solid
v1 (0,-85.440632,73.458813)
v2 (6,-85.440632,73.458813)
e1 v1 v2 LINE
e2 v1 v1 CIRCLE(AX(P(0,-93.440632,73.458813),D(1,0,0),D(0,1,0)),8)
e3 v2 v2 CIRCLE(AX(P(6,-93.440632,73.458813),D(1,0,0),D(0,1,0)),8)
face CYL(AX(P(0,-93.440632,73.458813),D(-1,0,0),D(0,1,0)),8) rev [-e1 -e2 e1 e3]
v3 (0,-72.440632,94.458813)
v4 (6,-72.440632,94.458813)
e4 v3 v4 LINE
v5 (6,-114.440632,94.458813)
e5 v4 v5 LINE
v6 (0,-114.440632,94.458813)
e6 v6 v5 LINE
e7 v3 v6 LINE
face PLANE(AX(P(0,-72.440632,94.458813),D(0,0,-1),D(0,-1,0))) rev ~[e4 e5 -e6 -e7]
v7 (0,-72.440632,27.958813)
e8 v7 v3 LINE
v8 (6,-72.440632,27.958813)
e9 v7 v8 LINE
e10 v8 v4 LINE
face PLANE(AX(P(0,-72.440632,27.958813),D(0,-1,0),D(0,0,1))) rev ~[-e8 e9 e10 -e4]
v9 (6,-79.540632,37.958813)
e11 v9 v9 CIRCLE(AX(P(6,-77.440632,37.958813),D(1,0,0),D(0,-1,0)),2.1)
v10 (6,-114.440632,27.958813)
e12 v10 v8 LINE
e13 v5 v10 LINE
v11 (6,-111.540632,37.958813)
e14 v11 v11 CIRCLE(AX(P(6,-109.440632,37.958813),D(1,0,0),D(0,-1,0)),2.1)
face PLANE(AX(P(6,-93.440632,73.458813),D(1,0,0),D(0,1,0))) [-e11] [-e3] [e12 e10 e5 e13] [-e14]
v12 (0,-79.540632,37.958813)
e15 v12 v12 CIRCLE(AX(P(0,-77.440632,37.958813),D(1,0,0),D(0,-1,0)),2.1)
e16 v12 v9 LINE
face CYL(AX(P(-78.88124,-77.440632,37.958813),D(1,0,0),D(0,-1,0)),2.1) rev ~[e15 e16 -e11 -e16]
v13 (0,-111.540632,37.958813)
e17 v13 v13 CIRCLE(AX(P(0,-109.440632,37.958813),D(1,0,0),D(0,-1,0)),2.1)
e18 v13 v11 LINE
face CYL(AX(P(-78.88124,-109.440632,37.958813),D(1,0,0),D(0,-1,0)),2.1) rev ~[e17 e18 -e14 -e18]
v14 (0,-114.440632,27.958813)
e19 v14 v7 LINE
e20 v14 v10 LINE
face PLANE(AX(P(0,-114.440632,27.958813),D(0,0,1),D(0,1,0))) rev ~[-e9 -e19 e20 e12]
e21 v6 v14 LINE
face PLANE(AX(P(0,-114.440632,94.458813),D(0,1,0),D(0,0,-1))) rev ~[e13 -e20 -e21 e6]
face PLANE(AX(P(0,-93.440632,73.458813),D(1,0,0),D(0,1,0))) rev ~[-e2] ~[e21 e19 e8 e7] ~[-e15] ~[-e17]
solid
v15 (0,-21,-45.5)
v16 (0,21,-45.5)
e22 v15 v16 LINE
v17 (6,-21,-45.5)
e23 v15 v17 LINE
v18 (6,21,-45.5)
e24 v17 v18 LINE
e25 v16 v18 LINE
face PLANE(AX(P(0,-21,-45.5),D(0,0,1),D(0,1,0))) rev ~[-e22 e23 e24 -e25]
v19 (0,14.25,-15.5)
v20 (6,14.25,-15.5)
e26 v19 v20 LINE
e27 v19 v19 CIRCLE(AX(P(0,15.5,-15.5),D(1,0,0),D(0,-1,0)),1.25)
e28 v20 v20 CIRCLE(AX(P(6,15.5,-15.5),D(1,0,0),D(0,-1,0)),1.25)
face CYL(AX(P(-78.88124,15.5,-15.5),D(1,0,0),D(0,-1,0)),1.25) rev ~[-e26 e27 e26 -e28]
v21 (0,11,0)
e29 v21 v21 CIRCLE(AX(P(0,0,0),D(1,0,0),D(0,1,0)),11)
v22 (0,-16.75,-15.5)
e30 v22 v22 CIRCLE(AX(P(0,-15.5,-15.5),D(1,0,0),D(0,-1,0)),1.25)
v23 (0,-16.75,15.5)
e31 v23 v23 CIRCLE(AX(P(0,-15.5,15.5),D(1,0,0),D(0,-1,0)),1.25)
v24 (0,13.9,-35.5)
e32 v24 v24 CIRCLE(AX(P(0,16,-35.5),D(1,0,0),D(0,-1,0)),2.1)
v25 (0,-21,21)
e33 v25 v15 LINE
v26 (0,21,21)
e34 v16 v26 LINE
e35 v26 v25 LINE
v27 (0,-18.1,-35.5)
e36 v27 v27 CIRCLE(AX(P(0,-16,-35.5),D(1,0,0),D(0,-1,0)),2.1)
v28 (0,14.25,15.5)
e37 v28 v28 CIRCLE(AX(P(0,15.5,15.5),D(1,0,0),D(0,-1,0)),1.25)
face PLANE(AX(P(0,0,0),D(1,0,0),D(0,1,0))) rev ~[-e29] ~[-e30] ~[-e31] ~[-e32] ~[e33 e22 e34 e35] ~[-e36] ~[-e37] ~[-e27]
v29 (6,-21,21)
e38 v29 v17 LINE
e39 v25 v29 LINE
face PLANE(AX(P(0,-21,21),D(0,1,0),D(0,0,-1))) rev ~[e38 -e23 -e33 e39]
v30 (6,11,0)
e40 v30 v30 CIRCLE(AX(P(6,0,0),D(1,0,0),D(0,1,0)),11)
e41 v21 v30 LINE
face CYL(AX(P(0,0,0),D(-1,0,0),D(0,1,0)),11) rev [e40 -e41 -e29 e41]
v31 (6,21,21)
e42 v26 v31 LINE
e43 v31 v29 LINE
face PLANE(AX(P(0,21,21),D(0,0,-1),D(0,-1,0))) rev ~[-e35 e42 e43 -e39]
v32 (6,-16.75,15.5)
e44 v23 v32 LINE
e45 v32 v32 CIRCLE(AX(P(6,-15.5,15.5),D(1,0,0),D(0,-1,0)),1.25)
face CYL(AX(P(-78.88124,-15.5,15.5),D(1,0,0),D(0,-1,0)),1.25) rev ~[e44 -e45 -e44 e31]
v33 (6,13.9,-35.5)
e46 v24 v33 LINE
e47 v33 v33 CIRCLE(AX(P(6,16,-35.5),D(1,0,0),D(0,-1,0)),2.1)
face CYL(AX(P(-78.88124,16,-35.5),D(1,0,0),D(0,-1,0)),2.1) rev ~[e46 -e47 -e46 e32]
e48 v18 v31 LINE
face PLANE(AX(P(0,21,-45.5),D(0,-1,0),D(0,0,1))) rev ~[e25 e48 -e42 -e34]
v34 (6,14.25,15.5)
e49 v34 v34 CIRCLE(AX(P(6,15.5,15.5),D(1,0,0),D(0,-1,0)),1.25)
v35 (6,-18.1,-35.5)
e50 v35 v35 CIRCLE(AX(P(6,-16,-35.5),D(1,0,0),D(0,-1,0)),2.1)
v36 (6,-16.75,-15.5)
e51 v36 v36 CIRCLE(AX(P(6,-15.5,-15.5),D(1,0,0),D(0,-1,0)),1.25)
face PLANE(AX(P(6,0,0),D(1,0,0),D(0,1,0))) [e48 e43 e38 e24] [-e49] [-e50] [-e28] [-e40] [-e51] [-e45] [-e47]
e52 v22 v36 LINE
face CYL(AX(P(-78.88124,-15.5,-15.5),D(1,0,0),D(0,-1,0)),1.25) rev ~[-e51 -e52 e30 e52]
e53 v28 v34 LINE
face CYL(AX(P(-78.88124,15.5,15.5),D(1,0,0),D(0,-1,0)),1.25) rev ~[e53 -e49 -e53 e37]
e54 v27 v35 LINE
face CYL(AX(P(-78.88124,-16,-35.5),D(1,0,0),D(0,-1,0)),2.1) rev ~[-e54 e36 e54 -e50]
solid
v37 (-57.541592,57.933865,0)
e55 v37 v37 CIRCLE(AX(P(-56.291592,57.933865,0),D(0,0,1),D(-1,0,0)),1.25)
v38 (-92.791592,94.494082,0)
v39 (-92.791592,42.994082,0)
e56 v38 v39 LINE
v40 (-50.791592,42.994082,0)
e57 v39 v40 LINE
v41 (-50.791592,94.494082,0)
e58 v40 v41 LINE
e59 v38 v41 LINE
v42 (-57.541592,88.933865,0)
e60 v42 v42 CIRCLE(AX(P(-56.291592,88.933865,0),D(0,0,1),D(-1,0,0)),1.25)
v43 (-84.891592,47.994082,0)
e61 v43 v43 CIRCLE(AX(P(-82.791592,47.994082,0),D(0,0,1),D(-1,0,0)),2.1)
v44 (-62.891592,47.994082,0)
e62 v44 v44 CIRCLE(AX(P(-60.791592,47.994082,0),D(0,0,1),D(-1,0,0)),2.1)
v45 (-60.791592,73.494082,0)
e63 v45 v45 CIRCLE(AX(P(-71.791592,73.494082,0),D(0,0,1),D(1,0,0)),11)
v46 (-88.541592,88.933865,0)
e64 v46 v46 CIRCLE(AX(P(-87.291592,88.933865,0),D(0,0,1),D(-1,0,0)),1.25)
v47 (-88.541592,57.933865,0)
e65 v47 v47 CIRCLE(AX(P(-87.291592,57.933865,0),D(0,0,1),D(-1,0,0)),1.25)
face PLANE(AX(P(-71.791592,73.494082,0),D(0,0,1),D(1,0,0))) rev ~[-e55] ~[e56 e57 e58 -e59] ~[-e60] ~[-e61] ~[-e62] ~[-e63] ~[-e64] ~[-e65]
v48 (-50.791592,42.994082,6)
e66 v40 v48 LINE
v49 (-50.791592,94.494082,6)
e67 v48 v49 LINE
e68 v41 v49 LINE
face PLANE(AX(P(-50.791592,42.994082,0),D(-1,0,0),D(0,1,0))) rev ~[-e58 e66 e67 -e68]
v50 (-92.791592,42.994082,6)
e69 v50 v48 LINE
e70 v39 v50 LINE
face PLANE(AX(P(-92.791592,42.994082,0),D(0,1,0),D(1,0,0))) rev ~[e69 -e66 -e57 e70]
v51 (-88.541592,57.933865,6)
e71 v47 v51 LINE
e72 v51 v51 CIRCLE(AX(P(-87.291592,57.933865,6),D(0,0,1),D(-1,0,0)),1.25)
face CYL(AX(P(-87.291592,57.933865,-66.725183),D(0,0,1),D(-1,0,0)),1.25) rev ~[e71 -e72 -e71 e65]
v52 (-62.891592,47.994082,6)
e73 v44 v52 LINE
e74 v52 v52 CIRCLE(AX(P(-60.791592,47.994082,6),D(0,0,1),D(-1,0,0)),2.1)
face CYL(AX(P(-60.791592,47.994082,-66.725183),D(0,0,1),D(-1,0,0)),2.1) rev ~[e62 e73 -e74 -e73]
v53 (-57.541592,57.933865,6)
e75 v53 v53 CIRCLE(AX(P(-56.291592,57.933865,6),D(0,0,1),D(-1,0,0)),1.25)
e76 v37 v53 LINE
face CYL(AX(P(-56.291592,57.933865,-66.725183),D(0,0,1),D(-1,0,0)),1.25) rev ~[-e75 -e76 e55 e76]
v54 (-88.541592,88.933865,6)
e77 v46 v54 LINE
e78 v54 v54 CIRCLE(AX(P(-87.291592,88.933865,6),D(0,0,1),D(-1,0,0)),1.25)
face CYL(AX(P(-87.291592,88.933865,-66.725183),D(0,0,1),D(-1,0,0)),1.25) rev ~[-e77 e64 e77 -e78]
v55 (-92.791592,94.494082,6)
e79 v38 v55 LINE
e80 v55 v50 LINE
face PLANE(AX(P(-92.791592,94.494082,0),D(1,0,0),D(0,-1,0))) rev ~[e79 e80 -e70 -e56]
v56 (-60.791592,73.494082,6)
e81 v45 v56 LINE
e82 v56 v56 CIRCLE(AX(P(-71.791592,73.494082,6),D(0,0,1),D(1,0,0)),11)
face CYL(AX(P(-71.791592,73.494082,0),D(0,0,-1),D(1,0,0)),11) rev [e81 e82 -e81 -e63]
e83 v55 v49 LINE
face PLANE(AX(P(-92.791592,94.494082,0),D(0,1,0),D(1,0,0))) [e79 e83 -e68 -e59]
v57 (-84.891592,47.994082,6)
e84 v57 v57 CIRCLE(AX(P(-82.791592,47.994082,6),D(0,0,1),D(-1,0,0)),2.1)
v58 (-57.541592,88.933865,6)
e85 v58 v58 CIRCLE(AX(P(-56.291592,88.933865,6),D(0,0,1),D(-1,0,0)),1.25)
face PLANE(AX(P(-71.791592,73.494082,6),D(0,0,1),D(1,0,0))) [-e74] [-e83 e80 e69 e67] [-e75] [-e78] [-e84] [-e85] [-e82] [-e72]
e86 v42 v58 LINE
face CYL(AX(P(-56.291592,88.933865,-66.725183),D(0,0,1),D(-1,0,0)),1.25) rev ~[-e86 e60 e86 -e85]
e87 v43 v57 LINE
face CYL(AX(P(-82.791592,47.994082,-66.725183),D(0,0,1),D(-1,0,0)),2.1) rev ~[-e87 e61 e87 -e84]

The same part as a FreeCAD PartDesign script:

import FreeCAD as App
import Part
import Sketcher
Q = App.Units.Quantity

doc = App.newDocument("Part")
body = doc.addObject("PartDesign::Body", "Body")

# Sketch on YZ plane
sketch1 = body.newObject("Sketcher::SketchObject", "Sketch")
sketch1.AttachmentSupport = (doc.getObject("YZ_Plane"), [""])
sketch1.MapMode = "FlatFace"
sketch1.addGeometry([
    Part.LineSegment(App.Vector(21, 21, 0), App.Vector(-21, 21, 0)),  # 0
    Part.LineSegment(App.Vector(-21, 21, 0), App.Vector(-21, -46, 0)),  # 1
    Part.LineSegment(App.Vector(-21, -46, 0), App.Vector(21, -46, 0)),  # 2
    Part.LineSegment(App.Vector(21, -46, 0), App.Vector(21, 21, 0)),  # 3
    Part.Circle(App.Vector(0, 0, 0), App.Vector(0, 0, 1), 11),  # 4
], False)
sketch1.addConstraint([
    Sketcher.Constraint("Coincident", 0, 2, 1, 1),
    Sketcher.Constraint("Coincident", 1, 2, 2, 1),
    Sketcher.Constraint("Coincident", 2, 2, 3, 1),
    Sketcher.Constraint("Coincident", 3, 2, 0, 1),
    Sketcher.Constraint("Horizontal", 0),
    Sketcher.Constraint("Vertical", 1),
    Sketcher.Constraint("Horizontal", 2),
    Sketcher.Constraint("Vertical", 3),
    Sketcher.Constraint("Coincident", 4, 3, -1, 1),
    Sketcher.Constraint("Diameter", 4, Q("22 mm")),
    Sketcher.Constraint("DistanceX", 0, 2, 0, 1, Q("42 mm")),
    Sketcher.Constraint("DistanceY", 1, 2, 1, 1, Q("66.5 mm")),
    Sketcher.Constraint("DistanceX", 0, 2, -1, 1, Q("21 mm")),
    Sketcher.Constraint("DistanceY", -1, 1, 0, 2, Q("21 mm")),
])
pad1 = body.newObject("PartDesign::Pad", "Pad")
pad1.Profile = sketch1
pad1.Length = 6

# Sketch on YZ plane
sketch2 = body.newObject("Sketcher::SketchObject", "Sketch001")
sketch2.AttachmentSupport = (doc.getObject("YZ_Plane"), [""])
sketch2.MapMode = "FlatFace"
sketch2.addGeometry([
    Part.Circle(App.Vector(-15.5, 15.5, 0), App.Vector(0, 0, 1), 1.2),
    Part.Circle(App.Vector(15.5, 15.5, 0), App.Vector(0, 0, 1), 1.2),
    Part.Circle(App.Vector(-15.5, -15.5, 0), App.Vector(0, 0, 1), 1.2),
    Part.Circle(App.Vector(15.5, -15.5, 0), App.Vector(0, 0, 1), 1.2),
], False)
sketch2.addConstraint([
    Sketcher.Constraint("Equal", 0, 1),
    Sketcher.Constraint("Equal", 1, 2),
    Sketcher.Constraint("Equal", 2, 3),
    Sketcher.Constraint("Symmetric", 1, 3, 2, 3, -1, 1),
    Sketcher.Constraint("Symmetric", 0, 3, 3, 3, -1, 1),
    Sketcher.Constraint("Symmetric", 0, 3, 1, 3, -2),
    Sketcher.Constraint("Diameter", 0, Q("2.5 mm")),
    Sketcher.Constraint("DistanceX", 0, 3, 1, 3, Q("31 mm")),
    Sketcher.Constraint("DistanceY", 2, 3, 0, 3, Q("31 mm")),
])
doc.recompute()
hole = body.newObject("PartDesign::Hole", "Hole")
hole.Profile = sketch2
hole.ThreadType = "None"
hole.Diameter = 2.5
hole.DepthType = "ThroughAll"
hole.Reversed = True

# Sketch on YZ plane
sketch3 = body.newObject("Sketcher::SketchObject", "Sketch002")
sketch3.AttachmentSupport = (doc.getObject("YZ_Plane"), [""])
sketch3.MapMode = "FlatFace"
sketch3.addGeometry([
    Part.Circle(App.Vector(-16, -35.5, 0), App.Vector(0, 0, 1), 2.1),
    Part.Circle(App.Vector(16, -35.5, 0), App.Vector(0, 0, 1), 2.1),
], False)
sketch3.addConstraint([
    Sketcher.Constraint("Equal", 0, 1),
    Sketcher.Constraint("Symmetric", 0, 3, 1, 3, -2),
    Sketcher.Constraint("Diameter", 0, Q("4.2 mm")),
    Sketcher.Constraint("DistanceX", 0, 3, -1, 1, Q("16 mm")),
    Sketcher.Constraint("DistanceY", 0, 3, -1, 1, Q("35.5 mm")),
])
doc.recompute()
hole2 = body.newObject("PartDesign::Hole", "Hole001")
hole2.Profile = sketch3
hole2.ThreadType = "None"
hole2.Diameter = 4.2
hole2.DepthType = "ThroughAll"
hole2.Reversed = True
body2 = doc.addObject("PartDesign::Body", "Body001")

# Sketch on YZ plane
sketch4 = body2.newObject("Sketcher::SketchObject", "Sketch003")
sketch4.AttachmentSupport = (doc.getObject("YZ_Plane001"), [""])
sketch4.MapMode = "FlatFace"
sketch4.addGeometry([
    Part.LineSegment(App.Vector(-72, 94, 0), App.Vector(-114, 94, 0)),  # 0
    Part.LineSegment(App.Vector(-114, 94, 0), App.Vector(-114, 28, 0)),  # 1
    Part.LineSegment(App.Vector(-114, 28, 0), App.Vector(-72, 28, 0)),  # 2
    Part.LineSegment(App.Vector(-72, 28, 0), App.Vector(-72, 94, 0)),  # 3
    Part.Circle(App.Vector(-93, 73, 0), App.Vector(0, 0, 1), 8),  # 4
], False)
sketch4.addConstraint([
    Sketcher.Constraint("Coincident", 0, 2, 1, 1),
    Sketcher.Constraint("Coincident", 1, 2, 2, 1),
    Sketcher.Constraint("Coincident", 2, 2, 3, 1),
    Sketcher.Constraint("Coincident", 3, 2, 0, 1),
    Sketcher.Constraint("Horizontal", 0),
    Sketcher.Constraint("Vertical", 1),
    Sketcher.Constraint("Horizontal", 2),
    Sketcher.Constraint("Vertical", 3),
    Sketcher.Constraint("Diameter", 4, Q("16 mm")),
    Sketcher.Constraint("DistanceX", 0, 2, 0, 1, Q("42 mm")),
    Sketcher.Constraint("DistanceY", 1, 2, 1, 1, Q("66.5 mm")),
    Sketcher.Constraint("DistanceX", 0, 2, 4, 3, Q("21 mm")),
    Sketcher.Constraint("DistanceY", 4, 3, 0, 2, Q("21 mm")),
    Sketcher.Constraint("DistanceX", 4, 3, -1, 1, Q("93.440632 mm")),
    Sketcher.Constraint("DistanceY", -1, 1, 4, 3, Q("73.458813 mm")),
])
pad2 = body2.newObject("PartDesign::Pad", "Pad001")
pad2.Profile = sketch4
pad2.Length = 6

# Sketch on YZ plane
sketch5 = body2.newObject("Sketcher::SketchObject", "Sketch004")
sketch5.AttachmentSupport = (doc.getObject("YZ_Plane001"), [""])
sketch5.MapMode = "FlatFace"
sketch5.addGeometry([
    Part.Circle(App.Vector(-109.4, 38, 0), App.Vector(0, 0, 1), 2.1),
    Part.Circle(App.Vector(-77.4, 38, 0), App.Vector(0, 0, 1), 2.1),
], False)
sketch5.addConstraint([
    Sketcher.Constraint("Equal", 0, 1),
    Sketcher.Constraint("Horizontal", 0, 3, 1, 3),
    Sketcher.Constraint("Diameter", 0, Q("4.2 mm")),
    Sketcher.Constraint("DistanceX", 0, 3, 1, 3, Q("32 mm")),
    Sketcher.Constraint("DistanceX", 0, 3, -1, 1, Q("109.440632 mm")),
    Sketcher.Constraint("DistanceY", -1, 1, 0, 3, Q("37.958813 mm")),
])
doc.recompute()
hole3 = body2.newObject("PartDesign::Hole", "Hole002")
hole3.Profile = sketch5
hole3.ThreadType = "None"
hole3.Diameter = 4.2
hole3.DepthType = "ThroughAll"
hole3.Reversed = True
body3 = doc.addObject("PartDesign::Body", "Body002")

# Sketch on XY plane
sketch6 = body3.newObject("Sketcher::SketchObject", "Sketch005")
sketch6.AttachmentSupport = (doc.getObject("XY_Plane002"), [""])
sketch6.MapMode = "FlatFace"
sketch6.addGeometry([
    Part.LineSegment(App.Vector(-93, 94, 0), App.Vector(-93, 43, 0)),  # 0
    Part.LineSegment(App.Vector(-93, 43, 0), App.Vector(-51, 43, 0)),  # 1
    Part.LineSegment(App.Vector(-51, 43, 0), App.Vector(-51, 94, 0)),  # 2
    Part.LineSegment(App.Vector(-51, 94, 0), App.Vector(-93, 94, 0)),  # 3
    Part.Circle(App.Vector(-72, 73, 0), App.Vector(0, 0, 1), 11),  # 4
], False)
sketch6.addConstraint([
    Sketcher.Constraint("Coincident", 0, 2, 1, 1),
    Sketcher.Constraint("Coincident", 1, 2, 2, 1),
    Sketcher.Constraint("Coincident", 2, 2, 3, 1),
    Sketcher.Constraint("Coincident", 3, 2, 0, 1),
    Sketcher.Constraint("Vertical", 0),
    Sketcher.Constraint("Horizontal", 1),
    Sketcher.Constraint("Vertical", 2),
    Sketcher.Constraint("Horizontal", 3),
    Sketcher.Constraint("Diameter", 4, Q("22 mm")),
    Sketcher.Constraint("DistanceX", 1, 1, 1, 2, Q("42 mm")),
    Sketcher.Constraint("DistanceY", 0, 2, 0, 1, Q("51.5 mm")),
    Sketcher.Constraint("DistanceX", 0, 2, 4, 3, Q("21 mm")),
    Sketcher.Constraint("DistanceY", 4, 3, 2, 2, Q("21 mm")),
    Sketcher.Constraint("DistanceY", -1, 1, 4, 3, Q("73.494082 mm")),
    Sketcher.Constraint("DistanceX", 4, 3, -1, 1, Q("71.791592 mm")),
])
pad3 = body3.newObject("PartDesign::Pad", "Pad002")
pad3.Profile = sketch6
pad3.Length = 6

# Sketch on XY plane
sketch7 = body3.newObject("Sketcher::SketchObject", "Sketch006")
sketch7.AttachmentSupport = (doc.getObject("XY_Plane002"), [""])
sketch7.MapMode = "FlatFace"
sketch7.addGeometry([
    Part.Circle(App.Vector(-56.3, 88.9, 0), App.Vector(0, 0, 1), 1.2),
    Part.Circle(App.Vector(-87.3, 88.9, 0), App.Vector(0, 0, 1), 1.2),
    Part.Circle(App.Vector(-56.3, 57.9, 0), App.Vector(0, 0, 1), 1.2),
    Part.Circle(App.Vector(-87.3, 57.9, 0), App.Vector(0, 0, 1), 1.2),
], False)
sketch7.addConstraint([
    Sketcher.Constraint("Equal", 0, 1),
    Sketcher.Constraint("Equal", 1, 2),
    Sketcher.Constraint("Equal", 2, 3),
    Sketcher.Constraint("Horizontal", 0, 3, 1, 3),
    Sketcher.Constraint("Horizontal", 2, 3, 3, 3),
    Sketcher.Constraint("Vertical", 0, 3, 2, 3),
    Sketcher.Constraint("Vertical", 1, 3, 3, 3),
    Sketcher.Constraint("Diameter", 0, Q("2.5 mm")),
    Sketcher.Constraint("DistanceX", 1, 3, 0, 3, Q("31 mm")),
    Sketcher.Constraint("DistanceY", 2, 3, 0, 3, Q("31 mm")),
    Sketcher.Constraint("DistanceX", 0, 3, -1, 1, Q("56.291592 mm")),
    Sketcher.Constraint("DistanceY", -1, 1, 0, 3, Q("88.933865 mm")),
])
doc.recompute()
hole4 = body3.newObject("PartDesign::Hole", "Hole003")
hole4.Profile = sketch7
hole4.ThreadType = "None"
hole4.Diameter = 2.5
hole4.DepthType = "ThroughAll"
hole4.Reversed = True

# Sketch on XY plane
sketch8 = body3.newObject("Sketcher::SketchObject", "Sketch007")
sketch8.AttachmentSupport = (doc.getObject("XY_Plane002"), [""])
sketch8.MapMode = "FlatFace"
sketch8.addGeometry([
    Part.Circle(App.Vector(-60.8, 48, 0), App.Vector(0, 0, 1), 2.1),
    Part.Circle(App.Vector(-82.8, 48, 0), App.Vector(0, 0, 1), 2.1),
], False)
sketch8.addConstraint([
    Sketcher.Constraint("Equal", 0, 1),
    Sketcher.Constraint("Horizontal", 0, 3, 1, 3),
    Sketcher.Constraint("Diameter", 0, Q("4.2 mm")),
    Sketcher.Constraint("DistanceX", 1, 3, 0, 3, Q("22 mm")),
    Sketcher.Constraint("DistanceY", -1, 1, 0, 3, Q("47.994082 mm")),
    Sketcher.Constraint("DistanceX", 0, 3, -1, 1, Q("60.791592 mm")),
])
doc.recompute()
hole5 = body3.newObject("PartDesign::Hole", "Hole004")
hole5.Profile = sketch8
hole5.ThreadType = "None"
hole5.Diameter = 4.2
hole5.DepthType = "ThroughAll"
hole5.Reversed = True

doc.recompute()
